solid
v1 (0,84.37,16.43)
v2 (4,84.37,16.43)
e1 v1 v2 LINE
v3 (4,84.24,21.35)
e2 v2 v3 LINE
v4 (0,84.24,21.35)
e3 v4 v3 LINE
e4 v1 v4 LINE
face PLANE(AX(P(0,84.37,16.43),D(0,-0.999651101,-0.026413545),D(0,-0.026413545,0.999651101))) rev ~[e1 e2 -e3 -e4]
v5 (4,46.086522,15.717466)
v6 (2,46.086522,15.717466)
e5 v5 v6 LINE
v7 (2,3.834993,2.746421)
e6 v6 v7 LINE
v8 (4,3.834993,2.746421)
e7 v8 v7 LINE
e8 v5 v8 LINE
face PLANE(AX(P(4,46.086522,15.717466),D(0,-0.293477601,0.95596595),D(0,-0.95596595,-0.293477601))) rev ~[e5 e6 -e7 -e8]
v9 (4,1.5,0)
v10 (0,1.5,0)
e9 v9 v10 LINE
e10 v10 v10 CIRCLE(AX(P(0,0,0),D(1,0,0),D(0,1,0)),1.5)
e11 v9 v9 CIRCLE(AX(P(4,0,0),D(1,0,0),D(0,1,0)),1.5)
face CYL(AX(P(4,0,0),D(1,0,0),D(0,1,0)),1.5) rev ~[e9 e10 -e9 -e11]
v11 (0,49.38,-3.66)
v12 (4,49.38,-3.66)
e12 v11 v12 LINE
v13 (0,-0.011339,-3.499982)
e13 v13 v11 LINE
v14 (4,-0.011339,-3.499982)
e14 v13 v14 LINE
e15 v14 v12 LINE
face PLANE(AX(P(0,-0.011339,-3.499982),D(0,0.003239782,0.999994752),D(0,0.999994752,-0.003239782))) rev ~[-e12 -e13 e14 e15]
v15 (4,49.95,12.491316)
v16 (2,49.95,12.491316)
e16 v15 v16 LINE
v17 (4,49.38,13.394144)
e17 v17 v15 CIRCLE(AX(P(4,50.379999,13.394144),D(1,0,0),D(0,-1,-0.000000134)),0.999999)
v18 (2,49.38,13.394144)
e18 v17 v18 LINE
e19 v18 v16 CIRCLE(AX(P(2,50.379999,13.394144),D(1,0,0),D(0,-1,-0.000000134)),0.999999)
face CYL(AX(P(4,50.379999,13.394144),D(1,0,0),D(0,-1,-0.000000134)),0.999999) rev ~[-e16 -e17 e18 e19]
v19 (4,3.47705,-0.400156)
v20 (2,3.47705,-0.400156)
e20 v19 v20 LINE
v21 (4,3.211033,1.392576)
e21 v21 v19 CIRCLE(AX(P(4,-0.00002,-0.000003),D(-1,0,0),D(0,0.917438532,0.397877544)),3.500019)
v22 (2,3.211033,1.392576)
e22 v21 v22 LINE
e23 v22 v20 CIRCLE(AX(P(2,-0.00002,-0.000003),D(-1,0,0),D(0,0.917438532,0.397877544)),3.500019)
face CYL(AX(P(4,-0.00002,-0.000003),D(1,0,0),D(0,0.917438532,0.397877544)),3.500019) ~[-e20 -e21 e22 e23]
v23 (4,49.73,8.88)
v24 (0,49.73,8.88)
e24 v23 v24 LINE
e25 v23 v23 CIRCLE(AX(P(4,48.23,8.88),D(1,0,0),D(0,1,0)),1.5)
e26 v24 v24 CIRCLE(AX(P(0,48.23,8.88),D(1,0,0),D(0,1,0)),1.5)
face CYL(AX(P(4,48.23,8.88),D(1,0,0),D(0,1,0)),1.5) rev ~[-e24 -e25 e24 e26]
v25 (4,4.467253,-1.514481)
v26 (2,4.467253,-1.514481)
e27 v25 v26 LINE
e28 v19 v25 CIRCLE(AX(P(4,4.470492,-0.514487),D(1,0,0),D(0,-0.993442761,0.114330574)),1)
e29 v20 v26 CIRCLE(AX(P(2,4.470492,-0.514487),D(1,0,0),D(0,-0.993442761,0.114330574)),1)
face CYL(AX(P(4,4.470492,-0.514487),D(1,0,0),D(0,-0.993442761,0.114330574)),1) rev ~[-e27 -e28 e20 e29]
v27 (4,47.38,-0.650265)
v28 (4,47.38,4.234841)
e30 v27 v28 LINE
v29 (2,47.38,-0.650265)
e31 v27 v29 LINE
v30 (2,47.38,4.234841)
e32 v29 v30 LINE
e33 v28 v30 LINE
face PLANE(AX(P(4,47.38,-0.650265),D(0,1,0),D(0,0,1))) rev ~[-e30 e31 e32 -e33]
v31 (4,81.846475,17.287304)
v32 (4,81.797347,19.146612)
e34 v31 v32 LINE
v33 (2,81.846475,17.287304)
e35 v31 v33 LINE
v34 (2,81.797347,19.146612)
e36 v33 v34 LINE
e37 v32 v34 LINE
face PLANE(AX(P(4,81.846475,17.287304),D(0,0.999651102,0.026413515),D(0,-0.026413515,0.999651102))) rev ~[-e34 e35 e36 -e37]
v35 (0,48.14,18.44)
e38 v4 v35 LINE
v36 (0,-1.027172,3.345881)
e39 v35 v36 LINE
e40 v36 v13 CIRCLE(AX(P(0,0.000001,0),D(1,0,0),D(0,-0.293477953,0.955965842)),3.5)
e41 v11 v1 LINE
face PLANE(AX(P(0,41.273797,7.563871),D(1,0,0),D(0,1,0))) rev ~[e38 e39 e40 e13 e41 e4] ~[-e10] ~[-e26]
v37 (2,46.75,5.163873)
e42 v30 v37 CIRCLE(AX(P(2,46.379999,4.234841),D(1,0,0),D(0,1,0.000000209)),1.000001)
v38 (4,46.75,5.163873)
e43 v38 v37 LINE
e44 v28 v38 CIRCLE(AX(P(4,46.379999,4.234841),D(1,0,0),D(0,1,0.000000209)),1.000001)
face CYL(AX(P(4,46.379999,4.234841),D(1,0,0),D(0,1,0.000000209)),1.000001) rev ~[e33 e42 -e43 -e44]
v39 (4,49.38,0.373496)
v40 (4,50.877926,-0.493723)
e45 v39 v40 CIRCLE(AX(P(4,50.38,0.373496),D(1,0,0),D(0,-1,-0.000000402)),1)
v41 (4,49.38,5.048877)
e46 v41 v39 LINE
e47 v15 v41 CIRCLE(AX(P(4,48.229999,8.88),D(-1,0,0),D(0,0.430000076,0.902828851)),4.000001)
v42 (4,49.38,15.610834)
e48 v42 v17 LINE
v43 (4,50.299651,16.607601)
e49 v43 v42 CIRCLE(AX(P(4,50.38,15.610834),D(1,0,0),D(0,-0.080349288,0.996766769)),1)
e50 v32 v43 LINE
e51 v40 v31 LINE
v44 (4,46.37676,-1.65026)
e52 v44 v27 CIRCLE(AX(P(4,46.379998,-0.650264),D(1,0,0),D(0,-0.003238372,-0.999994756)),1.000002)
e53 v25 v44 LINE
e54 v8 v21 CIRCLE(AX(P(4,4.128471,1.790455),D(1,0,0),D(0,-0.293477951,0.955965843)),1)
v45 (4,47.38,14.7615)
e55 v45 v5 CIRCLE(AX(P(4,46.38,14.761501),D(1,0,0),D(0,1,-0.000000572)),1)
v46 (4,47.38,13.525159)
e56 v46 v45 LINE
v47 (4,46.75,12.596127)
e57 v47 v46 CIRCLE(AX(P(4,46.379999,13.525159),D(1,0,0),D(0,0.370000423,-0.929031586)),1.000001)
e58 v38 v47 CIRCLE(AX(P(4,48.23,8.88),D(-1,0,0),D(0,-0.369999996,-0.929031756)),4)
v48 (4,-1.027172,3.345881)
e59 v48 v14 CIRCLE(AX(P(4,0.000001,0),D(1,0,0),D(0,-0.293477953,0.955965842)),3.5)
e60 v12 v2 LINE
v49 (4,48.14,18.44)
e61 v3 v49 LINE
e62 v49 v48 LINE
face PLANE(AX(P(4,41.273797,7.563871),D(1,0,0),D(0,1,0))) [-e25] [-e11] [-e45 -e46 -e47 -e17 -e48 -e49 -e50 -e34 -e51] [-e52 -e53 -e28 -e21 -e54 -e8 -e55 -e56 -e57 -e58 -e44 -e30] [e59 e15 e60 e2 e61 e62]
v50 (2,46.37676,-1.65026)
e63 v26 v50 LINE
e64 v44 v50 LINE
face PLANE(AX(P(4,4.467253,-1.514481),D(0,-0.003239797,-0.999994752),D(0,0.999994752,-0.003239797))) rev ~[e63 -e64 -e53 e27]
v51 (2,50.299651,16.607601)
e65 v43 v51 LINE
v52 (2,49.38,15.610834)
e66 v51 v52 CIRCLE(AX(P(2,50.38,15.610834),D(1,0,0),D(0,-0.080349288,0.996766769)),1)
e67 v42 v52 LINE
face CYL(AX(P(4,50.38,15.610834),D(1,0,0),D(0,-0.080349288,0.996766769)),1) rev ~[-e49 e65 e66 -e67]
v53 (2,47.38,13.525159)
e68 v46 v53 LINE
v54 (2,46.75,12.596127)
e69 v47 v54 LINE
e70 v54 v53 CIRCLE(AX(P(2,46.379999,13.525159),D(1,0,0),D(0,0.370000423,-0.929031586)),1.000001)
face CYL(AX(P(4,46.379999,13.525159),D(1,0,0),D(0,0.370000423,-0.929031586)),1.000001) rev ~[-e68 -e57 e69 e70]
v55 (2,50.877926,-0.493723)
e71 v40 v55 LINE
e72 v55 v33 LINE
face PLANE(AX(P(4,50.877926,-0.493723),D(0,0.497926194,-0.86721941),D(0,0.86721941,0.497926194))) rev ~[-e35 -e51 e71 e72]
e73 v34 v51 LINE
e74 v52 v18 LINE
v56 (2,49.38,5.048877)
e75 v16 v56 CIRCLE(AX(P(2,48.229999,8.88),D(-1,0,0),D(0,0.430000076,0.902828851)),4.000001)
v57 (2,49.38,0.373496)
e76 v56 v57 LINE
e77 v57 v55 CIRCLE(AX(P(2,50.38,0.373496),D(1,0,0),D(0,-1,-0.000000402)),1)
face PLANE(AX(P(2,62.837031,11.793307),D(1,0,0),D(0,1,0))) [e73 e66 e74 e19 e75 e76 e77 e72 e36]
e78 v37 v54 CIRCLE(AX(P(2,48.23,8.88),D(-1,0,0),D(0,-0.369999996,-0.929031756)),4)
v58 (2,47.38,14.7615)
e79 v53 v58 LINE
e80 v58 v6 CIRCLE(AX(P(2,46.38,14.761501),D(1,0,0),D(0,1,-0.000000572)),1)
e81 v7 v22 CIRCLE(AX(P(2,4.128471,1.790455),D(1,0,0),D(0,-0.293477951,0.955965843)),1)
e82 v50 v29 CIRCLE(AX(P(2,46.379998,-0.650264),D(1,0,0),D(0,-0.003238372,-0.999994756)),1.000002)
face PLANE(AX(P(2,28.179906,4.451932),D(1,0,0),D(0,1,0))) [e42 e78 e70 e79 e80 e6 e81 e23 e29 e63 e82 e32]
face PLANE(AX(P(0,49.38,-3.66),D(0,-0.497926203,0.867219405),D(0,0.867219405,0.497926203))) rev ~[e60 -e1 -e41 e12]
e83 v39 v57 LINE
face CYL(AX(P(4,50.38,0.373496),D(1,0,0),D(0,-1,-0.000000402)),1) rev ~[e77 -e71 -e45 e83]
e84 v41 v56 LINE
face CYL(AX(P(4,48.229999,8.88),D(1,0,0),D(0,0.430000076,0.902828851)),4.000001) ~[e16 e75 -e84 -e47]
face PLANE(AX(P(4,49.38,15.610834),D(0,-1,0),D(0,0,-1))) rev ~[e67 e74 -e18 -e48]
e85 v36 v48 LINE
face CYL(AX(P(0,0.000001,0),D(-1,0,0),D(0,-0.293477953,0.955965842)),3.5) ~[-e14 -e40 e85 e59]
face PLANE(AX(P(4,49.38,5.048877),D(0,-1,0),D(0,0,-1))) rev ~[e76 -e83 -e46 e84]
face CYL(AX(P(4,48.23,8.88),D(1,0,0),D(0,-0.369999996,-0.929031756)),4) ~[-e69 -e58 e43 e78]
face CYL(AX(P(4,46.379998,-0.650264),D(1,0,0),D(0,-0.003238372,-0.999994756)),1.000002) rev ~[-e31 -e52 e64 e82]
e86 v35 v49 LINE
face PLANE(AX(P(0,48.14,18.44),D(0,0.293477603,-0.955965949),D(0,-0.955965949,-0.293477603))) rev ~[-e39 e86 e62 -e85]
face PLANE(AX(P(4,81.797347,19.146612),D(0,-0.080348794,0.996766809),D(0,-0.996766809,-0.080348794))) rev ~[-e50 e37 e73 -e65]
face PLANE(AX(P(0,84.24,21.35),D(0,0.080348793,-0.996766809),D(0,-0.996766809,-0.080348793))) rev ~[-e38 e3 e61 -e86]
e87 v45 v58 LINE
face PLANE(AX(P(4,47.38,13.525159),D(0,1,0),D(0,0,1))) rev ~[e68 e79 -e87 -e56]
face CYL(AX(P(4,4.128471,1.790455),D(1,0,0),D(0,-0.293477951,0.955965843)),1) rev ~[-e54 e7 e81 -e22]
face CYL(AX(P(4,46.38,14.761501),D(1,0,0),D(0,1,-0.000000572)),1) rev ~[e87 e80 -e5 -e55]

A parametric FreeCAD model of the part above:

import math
import FreeCAD as App
import Part
import Sketcher
from FreeCAD import Vector

doc = App.newDocument("Part")
params = doc.addObject("Spreadsheet::Sheet", "Params")
for row, (alias, value) in enumerate([
    ("sketch1_radius", "3.5 mm"),
    ("pad1_length", "4 mm"),
    ("sketch2_radius", "4 mm"),
    ("sketch2_radius2", "1.000001 mm"),
    ("sketch2_radius3", "1 mm"),
    ("sketch2_radius4", "1 mm"),
    ("sketch2_radius5", "1 mm"),
    ("pocket1_length", "2 mm"),
    ("sketch3_diameter", "3 mm"),
], start=1):
    params.set(f"A{row}", alias)
    params.set(f"B{row}", "=" + value)
    params.setAlias(f"B{row}", alias)

body = doc.addObject("PartDesign::Body", "Body")

sketch1 = body.newObject("Sketcher::SketchObject", "Sketch")
sketch1.AttachmentSupport = (doc.getObject("YZ_Plane"), [""])
sketch1.MapMode = "FlatFace"
sketch1.addGeometry([
    Part.LineSegment(Vector(48.14, 18.44, 0), Vector(-1.027172, 3.345881, 0)),
    Part.ArcOfCircle(Part.Circle(Vector(0.000001, 0, 0), Vector(0, 0, 1), 3.5), math.radians(107.066291), math.radians(269.814362)),
    Part.LineSegment(Vector(-0.011339, -3.499982, 0), Vector(49.38, -3.66, 0)),
    Part.LineSegment(Vector(49.38, -3.66, 0), Vector(84.37, 16.43, 0)),
    Part.LineSegment(Vector(84.37, 16.43, 0), Vector(84.24, 21.35, 0)),
    Part.LineSegment(Vector(84.24, 21.35, 0), Vector(48.14, 18.44, 0)),
], False)
sketch1.addConstraint([
    Sketcher.Constraint("Tangent", 0, 2, 1, 1),
    Sketcher.Constraint("Tangent", 1, 2, 2, 1),
    Sketcher.Constraint("Coincident", 2, 2, 3, 1),
    Sketcher.Constraint("Coincident", 3, 2, 4, 1),
    Sketcher.Constraint("Coincident", 4, 2, 5, 1),
    Sketcher.Constraint("Coincident", 5, 2, 0, 1),
    Sketcher.Constraint("Coincident", 1, 3, -1, 1),
    Sketcher.Constraint("Radius", 1, 3.5),
    Sketcher.Constraint("DistanceY", 2, 2, 5, 2, 22.1),
    Sketcher.Constraint("DistanceX", 5, 2, 4, 2, 36.1),
    Sketcher.Constraint("DistanceX", -1, 1, 2, 2, 49.38),
    Sketcher.Constraint("DistanceY", 2, 2, -1, 1, 3.66),
    Sketcher.Constraint("DistanceX", -1, 1, 3, 2, 84.37),
    Sketcher.Constraint("DistanceY", -1, 1, 3, 2, 16.43),
    Sketcher.Constraint("DistanceX", -1, 1, 4, 2, 84.24),
    Sketcher.Constraint("DistanceY", -1, 1, 4, 2, 21.35),
])
sketch1.setExpression("Constraints[7]", "Params.sketch1_radius")
pad1 = body.newObject("PartDesign::Pad", "Pad")
pad1.Profile = sketch1
pad1.setExpression("Length", "Params.pad1_length")

sketch2 = body.newObject("Sketcher::SketchObject", "Sketch001")
sketch2.AttachmentSupport = (doc.getObject("YZ_Plane"), [""])
sketch2.MapMode = "FlatFace"
sketch2.AttachmentOffset = App.Placement(Vector(0, 0, 4), App.Rotation())
sketch2.addGeometry([
    Part.ArcOfCircle(Part.Circle(Vector(48.23, 8.88, 0), Vector(0, 0, 1), 4), math.radians(111.715617), math.radians(248.284383)),
    Part.ArcOfCircle(Part.Circle(Vector(46.379999, 13.525159, 0), Vector(0, 0, 1), 1.000001), math.radians(-68.284357), math.radians(-0.000012)),
    Part.LineSegment(Vector(47.38, 13.525159, 0), Vector(47.38, 14.7615, 0)),
    Part.ArcOfCircle(Part.Circle(Vector(46.38, 14.761501, 0), Vector(0, 0, 1), 1), math.radians(-0.000033), math.radians(107.066317)),
    Part.LineSegment(Vector(46.086522, 15.717466, 0), Vector(3.834993, 2.746421, 0)),
    Part.ArcOfCircle(Part.Circle(Vector(4.128471, 1.790455, 0), Vector(0, 0, 1), 1), math.radians(107.066291), math.radians(203.445653)),
    Part.ArcOfCircle(Part.Circle(Vector(-0.00002, -0.000003, 0), Vector(0, 0, 1), 3.500019), math.radians(-6.564911), math.radians(23.44556)),
    Part.ArcOfCircle(Part.Circle(Vector(4.470492, -0.514487, 0), Vector(0, 0, 1), 1), math.radians(173.434985), math.radians(269.814392)),
    Part.LineSegment(Vector(4.467253, -1.514481, 0), Vector(46.37676, -1.65026, 0)),
    Part.ArcOfCircle(Part.Circle(Vector(46.379998, -0.650264, 0), Vector(0, 0, 1), 1.000002), math.radians(-90.185545), math.radians(-0.000079)),
    Part.LineSegment(Vector(47.38, -0.650265, 0), Vector(47.38, 4.234841, 0)),
    Part.ArcOfCircle(Part.Circle(Vector(46.379999, 4.234841, 0), Vector(0, 0, 1), 1.000001), math.radians(0.000012), math.radians(68.284357)),
    Part.LineSegment(Vector(49.38, 15.610834, 0), Vector(49.38, 13.394144, 0)),
    Part.ArcOfCircle(Part.Circle(Vector(50.379999, 13.394144, 0), Vector(0, 0, 1), 0.999999), math.radians(-179.999992), math.radians(-115.467517)),
    Part.ArcOfCircle(Part.Circle(Vector(48.229999, 8.88, 0), Vector(0, 0, 1), 4.000001), math.radians(-73.29165), math.radians(64.532435)),
    Part.LineSegment(Vector(49.38, 5.048877, 0), Vector(49.38, 0.373496, 0)),
    Part.ArcOfCircle(Part.Circle(Vector(50.38, 0.373496, 0), Vector(0, 0, 1), 1), math.radians(-179.999977), math.radians(-60.137113)),
    Part.LineSegment(Vector(50.877926, -0.493723, 0), Vector(81.846475, 17.287304, 0)),
    Part.LineSegment(Vector(81.846475, 17.287304, 0), Vector(81.797347, 19.146612, 0)),
    Part.LineSegment(Vector(81.797347, 19.146612, 0), Vector(50.299651, 16.607601, 0)),
    Part.ArcOfCircle(Part.Circle(Vector(50.38, 15.610834, 0), Vector(0, 0, 1), 1), math.radians(94.608643), math.radians(179.999995)),
], False)
sketch2.addConstraint([
    Sketcher.Constraint("Coincident", 0, 1, 1, 1),
    Sketcher.Constraint("Coincident", 1, 2, 2, 1),
    Sketcher.Constraint("Coincident", 2, 2, 3, 1),
    Sketcher.Constraint("Coincident", 3, 2, 4, 1),
    Sketcher.Constraint("Coincident", 4, 2, 5, 1),
    Sketcher.Constraint("Coincident", 5, 2, 6, 2),
    Sketcher.Constraint("Coincident", 6, 1, 7, 1),
    Sketcher.Constraint("Coincident", 7, 2, 8, 1),
    Sketcher.Constraint("Coincident", 8, 2, 9, 1),
    Sketcher.Constraint("Coincident", 9, 2, 10, 1),
    Sketcher.Constraint("Coincident", 10, 2, 11, 1),
    Sketcher.Constraint("Coincident", 11, 2, 0, 2),
    Sketcher.Constraint("Coincident", 12, 2, 13, 1),
    Sketcher.Constraint("Coincident", 13, 2, 14, 2),
    Sketcher.Constraint("Coincident", 14, 1, 15, 1),
    Sketcher.Constraint("Coincident", 15, 2, 16, 1),
    Sketcher.Constraint("Coincident", 16, 2, 17, 1),
    Sketcher.Constraint("Coincident", 17, 2, 18, 1),
    Sketcher.Constraint("Coincident", 18, 2, 19, 1),
    Sketcher.Constraint("Coincident", 19, 2, 20, 1),
    Sketcher.Constraint("Coincident", 20, 2, 12, 1),
    Sketcher.Constraint("Vertical", 2),
    Sketcher.Constraint("Vertical", 10),
    Sketcher.Constraint("Vertical", 12),
    Sketcher.Constraint("Vertical", 15),
    Sketcher.Constraint("Coincident", 14, 3, 0, 3),
    Sketcher.Constraint("Radius", 0, 4.0),
    Sketcher.Constraint("Radius", 1, 1.000001),
    Sketcher.Constraint("Radius", 3, 1.0),
    Sketcher.Constraint("Radius", 5, 1.0),
    Sketcher.Constraint("Radius", 7, 1.0),
    Sketcher.Constraint("Radius", 9, 1.000002),
    Sketcher.Constraint("Radius", 11, 1.000001),
    Sketcher.Constraint("Radius", 13, 0.999999),
    Sketcher.Constraint("Radius", 14, 4.000001),
    Sketcher.Constraint("Radius", 16, 1.0),
    Sketcher.Constraint("Radius", 20, 1.0),
    Sketcher.Constraint("DistanceX", 1, 3, 13, 3, 3.999999),
    Sketcher.Constraint("DistanceX", 11, 3, 13, 3, 3.999999),
    Sketcher.Constraint("DistanceX", 9, 3, 16, 3, 4.000002),
    Sketcher.Constraint("DistanceX", 0, 1, 13, 2, 3.2),
    Sketcher.Constraint("DistanceX", -1, 1, 0, 3, 48.23),
    Sketcher.Constraint("DistanceY", -1, 1, 0, 3, 8.88),
    Sketcher.Constraint("DistanceX", -1, 1, 1, 3, 46.379999),
    Sketcher.Constraint("DistanceX", -1, 1, 0, 1, 46.75),
    Sketcher.Constraint("DistanceX", -1, 1, 11, 2, 46.75),
    Sketcher.Constraint("Radius", 6, 3.500019),
    Sketcher.Constraint("DistanceY", 2, 1, 2, 2, 1.236341),
    Sketcher.Constraint("DistanceY", 12, 2, 12, 1, 2.21669),
    Sketcher.Constraint("DistanceY", 15, 2, 15, 1, 4.675381),
    Sketcher.Constraint("DistanceY", -1, 1, 3, 3, 14.761501),
    Sketcher.Constraint("DistanceY", -1, 1, 2, 2, 14.7615),
    Sketcher.Constraint("DistanceY", -1, 1, 19, 2, 16.607601),
    Sketcher.Constraint("DistanceX", 4, 2, 7, 3, 0.635499),
    Sketcher.Constraint("DistanceY", 7, 2, 4, 2, 4.260902),
    Sketcher.Constraint("DistanceY", 8, 2, 11, 3, 5.885101),
    Sketcher.Constraint("DistanceY", 10, 1, 10, 2, 4.885106),
    Sketcher.Constraint("DistanceX", -1, 1, 5, 3, 4.128471),
    Sketcher.Constraint("DistanceX", -1, 1, 3, 2, 46.086522),
    Sketcher.Constraint("DistanceY", -1, 1, 4, 2, 2.746421),
    Sketcher.Constraint("DistanceX", -1, 1, 6, 1, 3.47705),
    Sketcher.Constraint("DistanceX", -1, 1, 8, 2, 46.37676),
    Sketcher.Constraint("DistanceY", -1, 1, 10, 2, 4.234841),
    Sketcher.Constraint("DistanceX", -1, 1, 19, 2, 50.299651),
    Sketcher.Constraint("DistanceX", 6, 3, 5, 3, 4.128491),
    Sketcher.Constraint("DistanceY", 9, 3, 16, 3, 1.02376),
    Sketcher.Constraint("DistanceY", 5, 2, 5, 3, 0.397879),
    Sketcher.Constraint("DistanceX", 7, 2, 7, 3, 0.003239),
    Sketcher.Constraint("DistanceY", 12, 2, 20, 3, 2.21669),
    Sketcher.Constraint("DistanceY", 16, 2, 16, 3, 0.867219),
    Sketcher.Constraint("DistanceY", 20, 3, 17, 2, 1.67647),
    Sketcher.Constraint("DistanceY", 17, 2, 18, 2, 1.859308),
    Sketcher.Constraint("DistanceX", 13, 3, 18, 2, 31.417348),
    Sketcher.Constraint("Distance", 17, 35.710166),
])
sketch2.setExpression("Constraints[26]", "Params.sketch2_radius")
sketch2.setExpression("Constraints[27]", "Params.sketch2_radius2")
sketch2.setExpression("Constraints[28]", "Params.sketch2_radius3")
sketch2.setExpression("Constraints[29]", "Params.sketch2_radius4")
sketch2.setExpression("Constraints[30]", "Params.sketch2_radius5")
pocket1 = body.newObject("PartDesign::Pocket", "Pocket")
pocket1.Profile = sketch2
pocket1.setExpression("Length", "Params.pocket1_length")

sketch3 = body.newObject("Sketcher::SketchObject", "Sketch002")
sketch3.AttachmentSupport = (doc.getObject("YZ_Plane"), [""])
sketch3.MapMode = "FlatFace"
sketch3.AttachmentOffset = App.Placement(Vector(0, 0, 4), App.Rotation())
sketch3.addGeometry([
    Part.Circle(Vector(0, 0, 0), Vector(0, 0, 1), 1.5),
    Part.Circle(Vector(48.23, 8.88, 0), Vector(0, 0, 1), 1.5),
], False)
sketch3.addConstraint([
    Sketcher.Constraint("Coincident", 0, 3, -1, 1),
    Sketcher.Constraint("Equal", 0, 1),
    Sketcher.Constraint("Diameter", 0, 3.0),
    Sketcher.Constraint("DistanceX", -1, 1, 1, 3, 48.23),
    Sketcher.Constraint("DistanceY", -1, 1, 1, 3, 8.88),
])
sketch3.setExpression("Constraints[2]", "Params.sketch3_diameter")
pocket2 = body.newObject("PartDesign::Pocket", "Pocket001")
pocket2.Profile = sketch3
pocket2.Type = "ThroughAll"

doc.recompute()
